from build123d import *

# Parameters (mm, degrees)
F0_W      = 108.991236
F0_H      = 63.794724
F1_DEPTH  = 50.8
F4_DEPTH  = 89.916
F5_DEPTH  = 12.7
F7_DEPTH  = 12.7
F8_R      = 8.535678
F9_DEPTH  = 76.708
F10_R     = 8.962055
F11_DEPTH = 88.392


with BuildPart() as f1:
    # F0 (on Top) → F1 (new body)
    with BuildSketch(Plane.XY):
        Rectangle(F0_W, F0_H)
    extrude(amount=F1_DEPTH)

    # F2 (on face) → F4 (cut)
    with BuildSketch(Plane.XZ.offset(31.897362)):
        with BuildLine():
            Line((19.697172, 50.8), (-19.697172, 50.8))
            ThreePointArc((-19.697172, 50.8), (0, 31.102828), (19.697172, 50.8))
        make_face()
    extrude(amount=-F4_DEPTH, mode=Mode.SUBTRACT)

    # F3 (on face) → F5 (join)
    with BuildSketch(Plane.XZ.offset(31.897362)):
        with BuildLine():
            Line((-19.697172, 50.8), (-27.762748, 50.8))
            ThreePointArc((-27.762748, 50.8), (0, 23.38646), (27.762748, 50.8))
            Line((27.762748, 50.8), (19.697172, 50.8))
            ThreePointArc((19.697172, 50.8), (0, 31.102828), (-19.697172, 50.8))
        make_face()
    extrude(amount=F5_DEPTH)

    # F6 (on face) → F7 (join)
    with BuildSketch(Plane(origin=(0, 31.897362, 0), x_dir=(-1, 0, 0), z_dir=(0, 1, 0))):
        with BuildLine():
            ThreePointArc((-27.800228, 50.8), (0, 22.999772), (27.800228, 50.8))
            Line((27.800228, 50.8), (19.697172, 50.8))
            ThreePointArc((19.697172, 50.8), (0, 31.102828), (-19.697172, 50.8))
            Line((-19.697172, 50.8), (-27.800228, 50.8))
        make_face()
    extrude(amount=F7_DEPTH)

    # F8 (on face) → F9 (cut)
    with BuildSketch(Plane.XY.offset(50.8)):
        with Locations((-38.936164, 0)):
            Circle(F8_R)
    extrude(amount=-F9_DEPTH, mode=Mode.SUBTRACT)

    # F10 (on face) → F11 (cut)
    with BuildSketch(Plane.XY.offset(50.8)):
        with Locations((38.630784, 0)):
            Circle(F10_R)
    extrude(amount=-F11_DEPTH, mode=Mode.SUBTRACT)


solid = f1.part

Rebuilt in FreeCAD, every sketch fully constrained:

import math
import FreeCAD as App
import Part
import Sketcher

V = App.Vector
Q = App.Units.Quantity


def add_polygon(sketch, points):
    """Adds a closed chain of lines whose ends are joined by coincident constraints."""
    first, n = sketch.GeometryCount, len(points)
    for a, b in zip(points, points[1:] + points[:1]):
        sketch.addGeometry(Part.LineSegment(App.Vector(*a, 0), App.Vector(*b, 0)), False)
    for i in range(n):
        sketch.addConstraint(Sketcher.Constraint("Coincident", first + i, 2, first + (i + 1) % n, 1))

doc = App.newDocument("Part")
body = doc.addObject("PartDesign::Body", "Body")

# Sketch on XY plane
sketch1 = doc.addObject("Sketcher::SketchObject", "Sketch")
body.addObject(sketch1)
sketch1.AttachmentSupport = (doc.XY_Plane, [""])
sketch1.MapMode = "FlatFace"
add_polygon(sketch1, [(-54, 32), (-54, -32), (54, -32), (54, 32)])  # lines 0-3
sketch1.addConstraint(Sketcher.Constraint("Vertical", 0))
sketch1.addConstraint(Sketcher.Constraint("Horizontal", 1))
sketch1.addConstraint(Sketcher.Constraint("Vertical", 2))
sketch1.addConstraint(Sketcher.Constraint("Horizontal", 3))
sketch1.addConstraint(Sketcher.Constraint("Symmetric", 0, 2, 2, 2, -1, 1))
sketch1.addConstraint(Sketcher.Constraint("DistanceX", 1, 1, 1, 2, Q("108.991236 mm")))
sketch1.addConstraint(Sketcher.Constraint("DistanceY", 0, 2, 0, 1, Q("63.794724 mm")))
pad1 = doc.addObject("PartDesign::Pad", "Pad")
body.addObject(pad1)
pad1.Profile = sketch1
pad1.Length = Q("2 in")

# Sketch on XZ plane
sketch2 = doc.addObject("Sketcher::SketchObject", "Sketch001")
body.addObject(sketch2)
sketch2.AttachmentSupport = (doc.XZ_Plane, [""])
sketch2.MapMode = "FlatFace"
sketch2.AttachmentOffset = App.Placement(V(0, 0, 31.897362), App.Rotation())
sketch2.addGeometry(Part.LineSegment(V(20, 51, 0), V(-20, 51, 0)), False)
sketch2.addGeometry(Part.ArcOfCircle(Part.Circle(V(0, 51, 0), V(0, 0, 1), 20), math.radians(180), math.radians(360)), False)
sketch2.addConstraint(Sketcher.Constraint("Coincident", 0, 1, 1, 2))
sketch2.addConstraint(Sketcher.Constraint("Coincident", 1, 1, 0, 2))
sketch2.addConstraint(Sketcher.Constraint("Horizontal", 0))
sketch2.addConstraint(Sketcher.Constraint("PointOnObject", 1, 3, -2))
sketch2.addConstraint(Sketcher.Constraint("Horizontal", 1, 3, 0, 1))
sketch2.addConstraint(Sketcher.Constraint("DistanceY", -1, 1, 1, 3, Q("2 in")))
sketch2.addConstraint(Sketcher.Constraint("Radius", 1, Q("19.697172 mm")))
pocket1 = doc.addObject("PartDesign::Pocket", "Pocket")
body.addObject(pocket1)
pocket1.Profile = sketch2
pocket1.Length = Q("3.54 in")

# Sketch on XZ plane
sketch3 = doc.addObject("Sketcher::SketchObject", "Sketch002")
body.addObject(sketch3)
sketch3.AttachmentSupport = (doc.XZ_Plane, [""])
sketch3.MapMode = "FlatFace"
sketch3.AttachmentOffset = App.Placement(V(0, 0, 31.897362), App.Rotation())
sketch3.addGeometry(Part.LineSegment(V(-20, 51, 0), V(-28, 51, 0)), False)
sketch3.addGeometry(Part.ArcOfCircle(Part.Circle(V(0, 51, 0), V(0, 0, 1), 28), math.radians(-179), math.radians(-1)), False)
sketch3.addGeometry(Part.LineSegment(V(28, 51, 0), V(20, 51, 0)), False)
sketch3.addGeometry(Part.ArcOfCircle(Part.Circle(V(0, 51, 0), V(0, 0, 1), 20), math.radians(180), math.radians(360)), False)
sketch3.addConstraint(Sketcher.Constraint("Coincident", 0, 2, 1, 1))
sketch3.addConstraint(Sketcher.Constraint("Coincident", 1, 2, 2, 1))
sketch3.addConstraint(Sketcher.Constraint("Coincident", 2, 2, 3, 2))
sketch3.addConstraint(Sketcher.Constraint("Coincident", 3, 1, 0, 1))
sketch3.addConstraint(Sketcher.Constraint("Horizontal", 0))
sketch3.addConstraint(Sketcher.Constraint("Horizontal", 2))
sketch3.addConstraint(Sketcher.Constraint("Symmetric", 0, 2, 1, 2, -2))
sketch3.addConstraint(Sketcher.Constraint("PointOnObject", 3, 3, -2))
sketch3.addConstraint(Sketcher.Constraint("Horizontal", 3, 3, 0, 2))
sketch3.addConstraint(Sketcher.Constraint("DistanceY", -1, 1, 3, 3, Q("2 in")))
sketch3.addConstraint(Sketcher.Constraint("Radius", 3, Q("19.697172 mm")))
sketch3.addConstraint(Sketcher.Constraint("Radius", 1, Q("27.764972 mm")))
sketch3.addConstraint(Sketcher.Constraint("DistanceX", 0, 2, 0, 1, Q("8.065576 mm")))
pad2 = doc.addObject("PartDesign::Pad", "Pad001")
body.addObject(pad2)
pad2.Profile = sketch3
pad2.Length = Q("0.5 in")

# Sketch on XZ plane
sketch4 = doc.addObject("Sketcher::SketchObject", "Sketch003")
body.addObject(sketch4)
sketch4.AttachmentSupport = (doc.XZ_Plane, [""])
sketch4.MapMode = "FlatFace"
sketch4.AttachmentOffset = App.Placement(V(0, 0, -31.897362), App.Rotation())
sketch4.addGeometry(Part.ArcOfCircle(Part.Circle(V(0, 51, 0), V(0, 0, 1), 28), math.radians(180), math.radians(360)), False)
sketch4.addGeometry(Part.LineSegment(V(-28, 51, 0), V(-20, 51, 0)), False)
sketch4.addGeometry(Part.ArcOfCircle(Part.Circle(V(0, 51, 0), V(0, 0, 1), 20), math.radians(180), math.radians(360)), False)
sketch4.addGeometry(Part.LineSegment(V(20, 51, 0), V(28, 51, 0)), False)
sketch4.addConstraint(Sketcher.Constraint("Coincident", 0, 1, 1, 1))
sketch4.addConstraint(Sketcher.Constraint("Coincident", 1, 2, 2, 1))
sketch4.addConstraint(Sketcher.Constraint("Coincident", 2, 2, 3, 1))
sketch4.addConstraint(Sketcher.Constraint("Coincident", 3, 2, 0, 2))
sketch4.addConstraint(Sketcher.Constraint("Horizontal", 1))
sketch4.addConstraint(Sketcher.Constraint("Horizontal", 3))
sketch4.addConstraint(Sketcher.Constraint("Coincident", 2, 3, 0, 3))
sketch4.addConstraint(Sketcher.Constraint("Symmetric", 1, 2, 2, 2, -2))
sketch4.addConstraint(Sketcher.Constraint("Horizontal", 2, 3, 0, 1))
sketch4.addConstraint(Sketcher.Constraint("DistanceY", -1, 1, 0, 3, Q("2 in")))
sketch4.addConstraint(Sketcher.Constraint("Radius", 0, Q("27.800228 mm")))
sketch4.addConstraint(Sketcher.Constraint("Radius", 2, Q("19.697172 mm")))
pad3 = doc.addObject("PartDesign::Pad", "Pad002")
body.addObject(pad3)
pad3.Profile = sketch4
pad3.Length = Q("0.5 in")
pad3.Reversed = True

# Sketch on XY plane
sketch5 = doc.addObject("Sketcher::SketchObject", "Sketch004")
body.addObject(sketch5)
sketch5.AttachmentSupport = (doc.XY_Plane, [""])
sketch5.MapMode = "FlatFace"
sketch5.AttachmentOffset = App.Placement(V(0, 0, 2 * 25.4), App.Rotation())
sketch5.addGeometry(Part.Circle(V(-39, 0, 0), V(0, 0, 1), 9), False)
sketch5.addConstraint(Sketcher.Constraint("PointOnObject", 0, 3, -1))
sketch5.addConstraint(Sketcher.Constraint("Diameter", 0, Q("17.071356 mm")))
sketch5.addConstraint(Sketcher.Constraint("DistanceX", 0, 3, -1, 1, Q("38.936164 mm")))
pocket2 = doc.addObject("PartDesign::Pocket", "Pocket001")
body.addObject(pocket2)
pocket2.Profile = sketch5
pocket2.Length = Q("3.02 in")

# Sketch on XY plane
sketch6 = doc.addObject("Sketcher::SketchObject", "Sketch005")
body.addObject(sketch6)
sketch6.AttachmentSupport = (doc.XY_Plane, [""])
sketch6.MapMode = "FlatFace"
sketch6.AttachmentOffset = App.Placement(V(0, 0, 2 * 25.4), App.Rotation())
sketch6.addGeometry(Part.Circle(V(39, 0, 0), V(0, 0, 1), 9), False)
sketch6.addConstraint(Sketcher.Constraint("PointOnObject", 0, 3, -1))
sketch6.addConstraint(Sketcher.Constraint("Diameter", 0, Q("17.92411 mm")))
sketch6.addConstraint(Sketcher.Constraint("DistanceX", -1, 1, 0, 3, Q("38.630784 mm")))
pocket3 = doc.addObject("PartDesign::Pocket", "Pocket002")
body.addObject(pocket3)
pocket3.Profile = sketch6
pocket3.Length = Q("3.48 in")

doc.recompute()
